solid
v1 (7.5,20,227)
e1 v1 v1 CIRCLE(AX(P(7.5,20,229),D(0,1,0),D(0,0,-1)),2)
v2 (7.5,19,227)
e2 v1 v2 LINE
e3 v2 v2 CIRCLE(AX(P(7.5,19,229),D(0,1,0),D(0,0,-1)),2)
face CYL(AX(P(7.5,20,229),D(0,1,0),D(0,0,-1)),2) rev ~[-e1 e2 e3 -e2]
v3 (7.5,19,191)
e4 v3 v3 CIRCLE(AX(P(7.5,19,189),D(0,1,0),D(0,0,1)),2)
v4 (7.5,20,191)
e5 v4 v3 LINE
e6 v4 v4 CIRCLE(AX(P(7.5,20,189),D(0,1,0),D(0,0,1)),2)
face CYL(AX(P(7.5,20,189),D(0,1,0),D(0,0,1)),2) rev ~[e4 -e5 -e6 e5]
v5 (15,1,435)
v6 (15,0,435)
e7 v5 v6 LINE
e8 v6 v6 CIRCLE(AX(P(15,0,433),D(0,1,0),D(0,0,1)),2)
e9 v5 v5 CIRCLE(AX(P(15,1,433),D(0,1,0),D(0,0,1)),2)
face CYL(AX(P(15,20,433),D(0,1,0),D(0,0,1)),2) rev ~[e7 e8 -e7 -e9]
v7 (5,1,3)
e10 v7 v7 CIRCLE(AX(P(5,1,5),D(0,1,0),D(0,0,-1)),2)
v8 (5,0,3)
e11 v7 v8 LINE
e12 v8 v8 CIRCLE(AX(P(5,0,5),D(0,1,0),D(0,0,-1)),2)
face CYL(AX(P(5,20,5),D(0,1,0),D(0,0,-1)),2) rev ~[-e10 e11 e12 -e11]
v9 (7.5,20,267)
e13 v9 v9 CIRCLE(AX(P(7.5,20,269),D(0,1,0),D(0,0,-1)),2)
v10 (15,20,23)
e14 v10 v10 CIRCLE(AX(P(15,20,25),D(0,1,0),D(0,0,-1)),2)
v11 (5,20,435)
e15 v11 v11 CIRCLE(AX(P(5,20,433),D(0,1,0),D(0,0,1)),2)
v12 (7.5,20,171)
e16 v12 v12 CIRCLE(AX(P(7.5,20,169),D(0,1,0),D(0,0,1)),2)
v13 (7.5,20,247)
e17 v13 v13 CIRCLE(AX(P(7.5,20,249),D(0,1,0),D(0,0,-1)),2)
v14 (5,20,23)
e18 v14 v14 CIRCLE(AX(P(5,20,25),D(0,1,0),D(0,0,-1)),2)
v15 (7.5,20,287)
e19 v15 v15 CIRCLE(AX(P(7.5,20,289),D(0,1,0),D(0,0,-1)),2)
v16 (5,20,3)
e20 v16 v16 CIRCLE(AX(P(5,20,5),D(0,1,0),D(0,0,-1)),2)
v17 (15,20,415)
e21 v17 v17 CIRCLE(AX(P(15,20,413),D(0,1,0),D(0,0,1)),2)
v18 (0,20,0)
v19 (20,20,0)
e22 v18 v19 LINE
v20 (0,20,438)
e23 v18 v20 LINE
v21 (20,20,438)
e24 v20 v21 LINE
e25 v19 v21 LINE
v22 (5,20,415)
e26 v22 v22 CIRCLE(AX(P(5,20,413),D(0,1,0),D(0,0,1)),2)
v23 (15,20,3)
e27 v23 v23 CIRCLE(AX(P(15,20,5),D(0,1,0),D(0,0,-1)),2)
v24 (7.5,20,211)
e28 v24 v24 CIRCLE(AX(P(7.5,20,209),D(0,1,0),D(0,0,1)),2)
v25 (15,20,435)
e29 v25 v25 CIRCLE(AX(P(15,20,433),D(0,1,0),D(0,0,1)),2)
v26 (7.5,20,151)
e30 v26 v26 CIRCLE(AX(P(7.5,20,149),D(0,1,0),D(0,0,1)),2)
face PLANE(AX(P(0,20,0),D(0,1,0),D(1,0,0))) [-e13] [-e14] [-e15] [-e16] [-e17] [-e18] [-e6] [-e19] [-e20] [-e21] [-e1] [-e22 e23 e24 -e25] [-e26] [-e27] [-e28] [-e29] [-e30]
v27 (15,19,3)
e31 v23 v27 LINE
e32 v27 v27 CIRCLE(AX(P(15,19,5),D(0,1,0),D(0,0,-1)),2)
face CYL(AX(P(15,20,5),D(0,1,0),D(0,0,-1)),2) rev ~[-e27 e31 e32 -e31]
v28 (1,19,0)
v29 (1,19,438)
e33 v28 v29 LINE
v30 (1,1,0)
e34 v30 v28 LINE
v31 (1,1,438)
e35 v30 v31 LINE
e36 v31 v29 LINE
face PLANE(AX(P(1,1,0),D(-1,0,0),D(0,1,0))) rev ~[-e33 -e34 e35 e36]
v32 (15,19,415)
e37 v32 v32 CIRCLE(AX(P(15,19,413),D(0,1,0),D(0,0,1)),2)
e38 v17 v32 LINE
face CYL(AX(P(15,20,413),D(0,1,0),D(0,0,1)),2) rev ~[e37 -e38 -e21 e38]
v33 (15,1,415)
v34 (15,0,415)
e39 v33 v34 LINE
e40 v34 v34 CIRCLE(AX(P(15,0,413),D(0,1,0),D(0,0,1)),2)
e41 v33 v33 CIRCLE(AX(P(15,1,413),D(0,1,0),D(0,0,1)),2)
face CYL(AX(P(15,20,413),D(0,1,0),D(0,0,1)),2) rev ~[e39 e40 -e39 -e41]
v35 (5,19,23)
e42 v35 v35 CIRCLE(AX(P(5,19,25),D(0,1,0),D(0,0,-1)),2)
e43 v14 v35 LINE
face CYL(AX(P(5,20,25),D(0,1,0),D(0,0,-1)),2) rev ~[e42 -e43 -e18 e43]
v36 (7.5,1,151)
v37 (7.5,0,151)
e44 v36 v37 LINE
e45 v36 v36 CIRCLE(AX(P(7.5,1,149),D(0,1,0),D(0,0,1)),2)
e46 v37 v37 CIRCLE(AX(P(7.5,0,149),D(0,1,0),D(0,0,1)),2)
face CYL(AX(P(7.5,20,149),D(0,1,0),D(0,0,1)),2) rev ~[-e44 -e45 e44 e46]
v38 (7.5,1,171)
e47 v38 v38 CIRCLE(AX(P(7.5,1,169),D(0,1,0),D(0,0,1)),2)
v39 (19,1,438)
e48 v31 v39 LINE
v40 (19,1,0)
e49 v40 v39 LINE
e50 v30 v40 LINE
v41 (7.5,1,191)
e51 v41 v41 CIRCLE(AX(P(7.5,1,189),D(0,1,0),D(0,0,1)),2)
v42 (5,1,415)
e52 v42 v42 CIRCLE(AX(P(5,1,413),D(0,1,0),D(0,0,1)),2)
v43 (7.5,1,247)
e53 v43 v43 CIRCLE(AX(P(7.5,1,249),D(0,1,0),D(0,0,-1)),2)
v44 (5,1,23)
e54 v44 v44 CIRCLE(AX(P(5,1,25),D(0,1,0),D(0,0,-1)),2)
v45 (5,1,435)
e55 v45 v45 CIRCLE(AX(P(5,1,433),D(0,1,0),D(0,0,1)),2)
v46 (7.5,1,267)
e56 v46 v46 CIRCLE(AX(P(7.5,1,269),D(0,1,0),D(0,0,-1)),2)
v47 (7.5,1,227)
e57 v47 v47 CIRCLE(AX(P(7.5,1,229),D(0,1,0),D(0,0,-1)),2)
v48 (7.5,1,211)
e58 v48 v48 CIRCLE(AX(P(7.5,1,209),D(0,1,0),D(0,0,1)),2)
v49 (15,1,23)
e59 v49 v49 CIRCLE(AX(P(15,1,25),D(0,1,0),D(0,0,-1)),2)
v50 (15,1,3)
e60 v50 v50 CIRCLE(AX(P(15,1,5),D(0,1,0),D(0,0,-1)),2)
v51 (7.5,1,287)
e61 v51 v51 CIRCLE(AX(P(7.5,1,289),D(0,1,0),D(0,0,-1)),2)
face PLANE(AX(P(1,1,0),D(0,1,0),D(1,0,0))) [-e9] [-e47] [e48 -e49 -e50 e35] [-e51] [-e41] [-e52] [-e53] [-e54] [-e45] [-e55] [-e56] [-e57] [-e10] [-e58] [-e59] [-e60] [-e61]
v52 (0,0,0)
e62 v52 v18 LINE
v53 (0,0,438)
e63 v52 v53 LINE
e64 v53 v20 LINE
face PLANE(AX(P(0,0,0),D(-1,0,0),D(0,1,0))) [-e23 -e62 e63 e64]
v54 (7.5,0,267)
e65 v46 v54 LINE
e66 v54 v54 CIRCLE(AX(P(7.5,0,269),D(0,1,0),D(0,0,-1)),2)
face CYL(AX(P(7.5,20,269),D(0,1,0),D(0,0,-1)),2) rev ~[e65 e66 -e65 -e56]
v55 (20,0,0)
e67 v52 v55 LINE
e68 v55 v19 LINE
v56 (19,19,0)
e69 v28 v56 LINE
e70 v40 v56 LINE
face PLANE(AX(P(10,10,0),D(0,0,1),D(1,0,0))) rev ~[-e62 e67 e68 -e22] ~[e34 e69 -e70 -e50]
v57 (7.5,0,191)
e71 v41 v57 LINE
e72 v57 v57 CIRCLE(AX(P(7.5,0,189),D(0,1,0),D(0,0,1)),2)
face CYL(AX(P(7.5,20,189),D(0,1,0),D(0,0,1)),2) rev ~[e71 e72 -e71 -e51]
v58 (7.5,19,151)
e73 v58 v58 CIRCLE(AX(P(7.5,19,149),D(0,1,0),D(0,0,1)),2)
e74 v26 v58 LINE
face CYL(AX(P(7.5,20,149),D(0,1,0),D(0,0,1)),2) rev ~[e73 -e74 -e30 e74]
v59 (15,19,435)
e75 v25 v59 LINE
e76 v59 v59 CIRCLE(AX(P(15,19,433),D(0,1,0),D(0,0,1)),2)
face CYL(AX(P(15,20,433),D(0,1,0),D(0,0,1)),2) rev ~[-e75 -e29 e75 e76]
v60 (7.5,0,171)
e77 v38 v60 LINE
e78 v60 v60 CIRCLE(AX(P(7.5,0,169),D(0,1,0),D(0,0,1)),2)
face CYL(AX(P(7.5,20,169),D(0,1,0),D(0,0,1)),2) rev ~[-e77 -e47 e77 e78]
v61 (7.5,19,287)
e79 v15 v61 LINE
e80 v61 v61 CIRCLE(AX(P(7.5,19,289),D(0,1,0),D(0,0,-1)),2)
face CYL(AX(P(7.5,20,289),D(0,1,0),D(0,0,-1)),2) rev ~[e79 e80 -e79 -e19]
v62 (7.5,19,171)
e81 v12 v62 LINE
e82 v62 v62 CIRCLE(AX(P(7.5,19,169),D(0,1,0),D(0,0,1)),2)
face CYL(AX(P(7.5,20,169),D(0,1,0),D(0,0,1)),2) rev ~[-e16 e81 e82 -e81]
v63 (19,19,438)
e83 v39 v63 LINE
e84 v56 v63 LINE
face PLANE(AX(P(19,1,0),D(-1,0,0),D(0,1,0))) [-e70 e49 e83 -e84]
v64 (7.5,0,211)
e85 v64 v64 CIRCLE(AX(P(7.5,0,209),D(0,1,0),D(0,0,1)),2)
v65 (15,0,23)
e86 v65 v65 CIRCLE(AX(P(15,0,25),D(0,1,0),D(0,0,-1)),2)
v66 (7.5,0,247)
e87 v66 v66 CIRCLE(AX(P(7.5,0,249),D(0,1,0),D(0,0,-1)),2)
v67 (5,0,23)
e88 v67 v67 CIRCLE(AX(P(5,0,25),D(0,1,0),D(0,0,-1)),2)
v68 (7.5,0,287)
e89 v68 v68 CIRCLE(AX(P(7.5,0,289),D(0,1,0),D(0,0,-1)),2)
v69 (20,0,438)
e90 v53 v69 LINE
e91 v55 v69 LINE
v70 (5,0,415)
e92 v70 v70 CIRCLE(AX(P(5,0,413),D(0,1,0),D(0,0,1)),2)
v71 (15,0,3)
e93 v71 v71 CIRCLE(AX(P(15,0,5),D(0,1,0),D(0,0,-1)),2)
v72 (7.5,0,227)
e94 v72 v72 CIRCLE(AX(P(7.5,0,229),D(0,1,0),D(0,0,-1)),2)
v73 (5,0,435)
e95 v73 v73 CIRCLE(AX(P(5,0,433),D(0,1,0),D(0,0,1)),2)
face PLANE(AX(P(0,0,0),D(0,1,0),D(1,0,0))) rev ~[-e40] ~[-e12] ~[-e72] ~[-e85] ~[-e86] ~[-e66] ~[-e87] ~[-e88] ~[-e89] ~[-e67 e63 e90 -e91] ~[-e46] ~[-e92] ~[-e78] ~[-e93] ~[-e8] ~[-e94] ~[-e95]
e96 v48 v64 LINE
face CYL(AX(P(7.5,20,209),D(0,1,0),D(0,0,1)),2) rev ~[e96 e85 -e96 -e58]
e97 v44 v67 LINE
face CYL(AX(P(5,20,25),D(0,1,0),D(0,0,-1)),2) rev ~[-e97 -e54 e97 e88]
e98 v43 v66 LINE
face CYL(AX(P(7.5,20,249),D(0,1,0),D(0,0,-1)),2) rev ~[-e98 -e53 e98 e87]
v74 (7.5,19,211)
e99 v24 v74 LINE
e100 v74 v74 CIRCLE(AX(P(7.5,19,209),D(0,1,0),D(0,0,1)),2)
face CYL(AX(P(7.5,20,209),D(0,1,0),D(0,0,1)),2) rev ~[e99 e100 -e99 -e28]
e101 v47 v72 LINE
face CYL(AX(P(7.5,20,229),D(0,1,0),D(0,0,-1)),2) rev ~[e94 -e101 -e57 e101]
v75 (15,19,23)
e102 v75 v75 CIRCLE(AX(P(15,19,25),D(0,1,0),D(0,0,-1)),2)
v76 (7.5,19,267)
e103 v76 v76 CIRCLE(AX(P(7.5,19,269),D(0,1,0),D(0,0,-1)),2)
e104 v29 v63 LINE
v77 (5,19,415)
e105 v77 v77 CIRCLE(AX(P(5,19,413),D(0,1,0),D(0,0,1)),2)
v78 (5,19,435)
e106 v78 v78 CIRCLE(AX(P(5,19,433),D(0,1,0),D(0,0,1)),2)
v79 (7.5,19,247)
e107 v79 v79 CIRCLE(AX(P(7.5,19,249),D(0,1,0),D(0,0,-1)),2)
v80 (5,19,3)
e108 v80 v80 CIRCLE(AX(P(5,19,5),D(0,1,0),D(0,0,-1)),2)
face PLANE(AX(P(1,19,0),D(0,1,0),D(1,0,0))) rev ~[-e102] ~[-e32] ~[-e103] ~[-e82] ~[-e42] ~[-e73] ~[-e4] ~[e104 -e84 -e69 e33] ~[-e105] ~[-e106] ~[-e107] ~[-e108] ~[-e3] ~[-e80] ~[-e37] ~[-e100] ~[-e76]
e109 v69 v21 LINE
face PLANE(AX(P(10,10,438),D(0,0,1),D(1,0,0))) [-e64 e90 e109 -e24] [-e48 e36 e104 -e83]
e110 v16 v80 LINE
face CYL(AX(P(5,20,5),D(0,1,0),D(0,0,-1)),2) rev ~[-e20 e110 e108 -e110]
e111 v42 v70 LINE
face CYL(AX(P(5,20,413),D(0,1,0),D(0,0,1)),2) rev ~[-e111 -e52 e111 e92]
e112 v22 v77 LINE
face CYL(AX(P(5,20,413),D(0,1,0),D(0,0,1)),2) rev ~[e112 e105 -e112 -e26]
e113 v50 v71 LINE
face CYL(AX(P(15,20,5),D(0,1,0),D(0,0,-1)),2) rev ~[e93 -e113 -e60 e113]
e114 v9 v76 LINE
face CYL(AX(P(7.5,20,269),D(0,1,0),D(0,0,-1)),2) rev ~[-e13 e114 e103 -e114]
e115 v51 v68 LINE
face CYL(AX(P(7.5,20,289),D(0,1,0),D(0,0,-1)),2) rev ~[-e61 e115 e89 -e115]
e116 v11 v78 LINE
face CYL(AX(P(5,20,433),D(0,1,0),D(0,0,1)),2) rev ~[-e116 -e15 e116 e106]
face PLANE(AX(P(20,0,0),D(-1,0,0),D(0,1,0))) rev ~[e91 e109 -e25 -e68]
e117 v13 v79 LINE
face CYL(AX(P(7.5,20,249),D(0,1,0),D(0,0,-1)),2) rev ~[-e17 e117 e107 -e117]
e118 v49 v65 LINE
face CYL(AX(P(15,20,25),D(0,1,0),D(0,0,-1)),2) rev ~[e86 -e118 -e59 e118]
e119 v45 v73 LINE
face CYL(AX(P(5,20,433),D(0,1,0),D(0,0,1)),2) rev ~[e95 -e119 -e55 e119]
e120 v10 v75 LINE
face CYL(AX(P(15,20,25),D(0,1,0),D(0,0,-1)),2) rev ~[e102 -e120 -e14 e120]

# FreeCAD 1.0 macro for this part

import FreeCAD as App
import Part
import Sketcher
Q = App.Units.Quantity

doc = App.newDocument("Part")
params = doc.addObject("Spreadsheet::Sheet", "Params")
for row, (alias, value) in enumerate([
    ("sketch1_width", "20 mm"),
    ("sketch1_width2", "18 mm"),
    ("pad1_length", "438 mm"),
    ("sketch2_diameter", "4 mm"),
], start=1):
    params.set(f"A{row}", alias)
    params.set(f"B{row}", "=" + value)
    params.setAlias(f"B{row}", alias)

body = doc.addObject("PartDesign::Body", "Body")

# Sketch on XY plane
sketch1 = body.newObject("Sketcher::SketchObject", "Sketch")
sketch1.AttachmentSupport = (doc.getObject("XY_Plane"), [""])
sketch1.MapMode = "FlatFace"
sketch1.addGeometry([
    Part.LineSegment(App.Vector(0, 20, 0), App.Vector(0, 0, 0)),  # 0
    Part.LineSegment(App.Vector(0, 0, 0), App.Vector(20, 0, 0)),  # 1
    Part.LineSegment(App.Vector(20, 0, 0), App.Vector(20, 20, 0)),  # 2
    Part.LineSegment(App.Vector(20, 20, 0), App.Vector(0, 20, 0)),  # 3
    Part.LineSegment(App.Vector(19, 1, 0), App.Vector(1, 1, 0)),  # 4
    Part.LineSegment(App.Vector(1, 1, 0), App.Vector(1, 19, 0)),  # 5
    Part.LineSegment(App.Vector(1, 19, 0), App.Vector(19, 19, 0)),  # 6
    Part.LineSegment(App.Vector(19, 19, 0), App.Vector(19, 1, 0)),  # 7
], False)
sketch1.addConstraint([
    Sketcher.Constraint("Coincident", 0, 2, 1, 1),
    Sketcher.Constraint("Coincident", 1, 2, 2, 1),
    Sketcher.Constraint("Coincident", 2, 2, 3, 1),
    Sketcher.Constraint("Coincident", 3, 2, 0, 1),
    Sketcher.Constraint("Coincident", 4, 2, 5, 1),
    Sketcher.Constraint("Coincident", 5, 2, 6, 1),
    Sketcher.Constraint("Coincident", 6, 2, 7, 1),
    Sketcher.Constraint("Coincident", 7, 2, 4, 1),
    Sketcher.Constraint("Vertical", 0),
    Sketcher.Constraint("Horizontal", 1),
    Sketcher.Constraint("Vertical", 2),
    Sketcher.Constraint("Horizontal", 3),
    Sketcher.Constraint("Horizontal", 4),
    Sketcher.Constraint("Vertical", 5),
    Sketcher.Constraint("Horizontal", 6),
    Sketcher.Constraint("Vertical", 7),
    Sketcher.Constraint("Coincident", 0, 2, -1, 1),
    Sketcher.Constraint("Equal", 3, 0),
    Sketcher.Constraint("Equal", 6, 5),
    Sketcher.Constraint("DistanceX", 1, 1, 1, 2, Q("20 mm")),
    Sketcher.Constraint("DistanceX", 4, 2, 4, 1, Q("18 mm")),
    Sketcher.Constraint("DistanceX", -1, 1, 4, 2, Q("1 mm")),
    Sketcher.Constraint("DistanceY", -1, 1, 4, 2, Q("1 mm")),
])
sketch1.setExpression("Constraints[19]", "Params.sketch1_width")
sketch1.setExpression("Constraints[20]", "Params.sketch1_width2")
pad1 = body.newObject("PartDesign::Pad", "Pad")
pad1.Profile = sketch1
pad1.setExpression("Length", "Params.pad1_length")

# Sketch on XZ plane
sketch2 = body.newObject("Sketcher::SketchObject", "Sketch001")
sketch2.AttachmentSupport = (doc.getObject("XZ_Plane"), [""])
sketch2.MapMode = "FlatFace"
sketch2.AttachmentOffset = App.Placement(App.Vector(0, 0, -20), App.Rotation())
sketch2.addGeometry([
    Part.Circle(App.Vector(5, 413, 0), App.Vector(0, 0, 1), 2),  # 0
    Part.Circle(App.Vector(15, 413, 0), App.Vector(0, 0, 1), 2),  # 1
    Part.Circle(App.Vector(15, 433, 0), App.Vector(0, 0, 1), 2),  # 2
    Part.Circle(App.Vector(5, 433, 0), App.Vector(0, 0, 1), 2),  # 3
    Part.Circle(App.Vector(5, 5, 0), App.Vector(0, 0, 1), 2),  # 4
    Part.Circle(App.Vector(15, 5, 0), App.Vector(0, 0, 1), 2),  # 5
    Part.Circle(App.Vector(15, 25, 0), App.Vector(0, 0, 1), 2),  # 6
    Part.Circle(App.Vector(5, 25, 0), App.Vector(0, 0, 1), 2),  # 7
    Part.Circle(App.Vector(7.5, 149, 0), App.Vector(0, 0, 1), 2),  # 8
    Part.Circle(App.Vector(7.5, 169, 0), App.Vector(0, 0, 1), 2),  # 9
    Part.Circle(App.Vector(7.5, 189, 0), App.Vector(0, 0, 1), 2),  # 10
    Part.Circle(App.Vector(7.5, 209, 0), App.Vector(0, 0, 1), 2),  # 11
    Part.Circle(App.Vector(7.5, 229, 0), App.Vector(0, 0, 1), 2),  # 12
    Part.Circle(App.Vector(7.5, 249, 0), App.Vector(0, 0, 1), 2),  # 13
    Part.Circle(App.Vector(7.5, 269, 0), App.Vector(0, 0, 1), 2),  # 14
    Part.Circle(App.Vector(7.5, 289, 0), App.Vector(0, 0, 1), 2),  # 15
], False)
sketch2.addConstraint([
    Sketcher.Constraint("Equal", 0, 1),
    Sketcher.Constraint("Equal", 1, 2),
    Sketcher.Constraint("Equal", 2, 3),
    Sketcher.Constraint("Equal", 3, 4),
    Sketcher.Constraint("Equal", 4, 5),
    Sketcher.Constraint("Equal", 5, 6),
    Sketcher.Constraint("Equal", 6, 7),
    Sketcher.Constraint("Equal", 7, 8),
    Sketcher.Constraint("Equal", 8, 9),
    Sketcher.Constraint("Equal", 9, 10),
    Sketcher.Constraint("Equal", 10, 11),
    Sketcher.Constraint("Equal", 11, 12),
    Sketcher.Constraint("Equal", 12, 13),
    Sketcher.Constraint("Equal", 13, 14),
    Sketcher.Constraint("Equal", 14, 15),
    Sketcher.Constraint("Horizontal", 0, 3, 1, 3),
    Sketcher.Constraint("Horizontal", 2, 3, 3, 3),
    Sketcher.Constraint("Horizontal", 4, 3, 5, 3),
    Sketcher.Constraint("Horizontal", 6, 3, 7, 3),
    Sketcher.Constraint("Vertical", 1, 3, 2, 3),
    Sketcher.Constraint("Vertical", 0, 3, 3, 3),
    Sketcher.Constraint("Vertical", 3, 3, 4, 3),
    Sketcher.Constraint("Vertical", 2, 3, 5, 3),
    Sketcher.Constraint("Vertical", 5, 3, 6, 3),
    Sketcher.Constraint("Vertical", 4, 3, 7, 3),
    Sketcher.Constraint("Vertical", 8, 3, 9, 3),
    Sketcher.Constraint("Vertical", 9, 3, 10, 3),
    Sketcher.Constraint("Vertical", 10, 3, 11, 3),
    Sketcher.Constraint("Vertical", 11, 3, 12, 3),
    Sketcher.Constraint("Vertical", 12, 3, 13, 3),
    Sketcher.Constraint("Vertical", 13, 3, 14, 3),
    Sketcher.Constraint("Vertical", 14, 3, 15, 3),
    Sketcher.Constraint("Diameter", 0, Q("4 mm")),
    Sketcher.Constraint("DistanceX", -1, 1, 0, 3, Q("5 mm")),
    Sketcher.Constraint("DistanceY", -1, 1, 0, 3, Q("413 mm")),
    Sketcher.Constraint("DistanceX", -1, 1, 1, 3, Q("15 mm")),
    Sketcher.Constraint("DistanceY", -1, 1, 2, 3, Q("433 mm")),
    Sketcher.Constraint("DistanceY", -1, 1, 4, 3, Q("5 mm")),
    Sketcher.Constraint("DistanceY", -1, 1, 6, 3, Q("25 mm")),
    Sketcher.Constraint("DistanceY", -1, 1, 8, 3, Q("149 mm")),
    Sketcher.Constraint("DistanceY", -1, 1, 9, 3, Q("169 mm")),
    Sketcher.Constraint("DistanceY", -1, 1, 10, 3, Q("189 mm")),
    Sketcher.Constraint("DistanceY", -1, 1, 11, 3, Q("209 mm")),
    Sketcher.Constraint("DistanceY", -1, 1, 12, 3, Q("229 mm")),
    Sketcher.Constraint("DistanceY", -1, 1, 13, 3, Q("249 mm")),
    Sketcher.Constraint("DistanceY", -1, 1, 14, 3, Q("269 mm")),
    Sketcher.Constraint("DistanceY", -1, 1, 15, 3, Q("289 mm")),
    Sketcher.Constraint("DistanceX", -1, 1, 8, 3, Q("7.5 mm")),
])
sketch2.setExpression("Constraints[32]", "Params.sketch2_diameter")
pocket1 = body.newObject("PartDesign::Pocket", "Pocket")
pocket1.Profile = sketch2
pocket1.Type = "ThroughAll"
pocket1.Reversed = True

doc.recompute()
